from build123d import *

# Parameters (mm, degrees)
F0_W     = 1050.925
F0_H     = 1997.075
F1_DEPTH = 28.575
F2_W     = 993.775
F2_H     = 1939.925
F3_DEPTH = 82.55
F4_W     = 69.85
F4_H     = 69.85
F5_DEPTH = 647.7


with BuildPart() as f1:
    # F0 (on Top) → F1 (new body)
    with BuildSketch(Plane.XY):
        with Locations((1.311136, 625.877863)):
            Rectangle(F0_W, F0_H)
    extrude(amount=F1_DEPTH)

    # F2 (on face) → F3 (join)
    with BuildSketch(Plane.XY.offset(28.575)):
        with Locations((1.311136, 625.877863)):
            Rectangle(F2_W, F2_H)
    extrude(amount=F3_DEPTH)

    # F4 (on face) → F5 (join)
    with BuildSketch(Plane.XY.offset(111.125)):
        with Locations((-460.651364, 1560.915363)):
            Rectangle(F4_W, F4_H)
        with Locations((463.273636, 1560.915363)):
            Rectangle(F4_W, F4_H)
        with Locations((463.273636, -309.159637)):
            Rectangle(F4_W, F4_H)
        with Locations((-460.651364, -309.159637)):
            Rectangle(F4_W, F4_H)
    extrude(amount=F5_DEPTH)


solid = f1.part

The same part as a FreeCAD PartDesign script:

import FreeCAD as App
import Part
import Sketcher
from FreeCAD import Vector
Q = App.Units.Quantity

doc = App.newDocument("Part")
params = doc.addObject("Spreadsheet::Sheet", "Params")
for row, (alias, value) in enumerate([
    ("sketch1_width", "41.375 in"),
    ("sketch1_height", "78.625 in"),
    ("pad1_length", "1.125 in"),
    ("sketch2_width", "39.125 in"),
    ("sketch2_height", "76.375 in"),
    ("pad2_length", "3.25 in"),
    ("sketch3_width", "2.75 in"),
    ("pad3_length", "25.5 in"),
], start=1):
    params.set(f"A{row}", alias)
    params.set(f"B{row}", "=" + value)
    params.setAlias(f"B{row}", alias)

body = doc.addObject("PartDesign::Body", "Body")

# Sketch on XY plane
sketch1 = doc.addObject("Sketcher::SketchObject", "Sketch")
body.addObject(sketch1)
sketch1.AttachmentSupport = (doc.XY_Plane, [""])
sketch1.MapMode = "FlatFace"
sketch1.addGeometry(Part.LineSegment(Vector(-524, 1624, 0), Vector(-524, -373, 0)), False)
sketch1.addGeometry(Part.LineSegment(Vector(-524, -373, 0), Vector(527, -373, 0)), False)
sketch1.addGeometry(Part.LineSegment(Vector(527, -373, 0), Vector(527, 1624, 0)), False)
sketch1.addGeometry(Part.LineSegment(Vector(527, 1624, 0), Vector(-524, 1624, 0)), False)
sketch1.addConstraint(Sketcher.Constraint("Coincident", 0, 2, 1, 1))
sketch1.addConstraint(Sketcher.Constraint("Coincident", 1, 2, 2, 1))
sketch1.addConstraint(Sketcher.Constraint("Coincident", 2, 2, 3, 1))
sketch1.addConstraint(Sketcher.Constraint("Coincident", 3, 2, 0, 1))
sketch1.addConstraint(Sketcher.Constraint("Vertical", 0))
sketch1.addConstraint(Sketcher.Constraint("Horizontal", 1))
sketch1.addConstraint(Sketcher.Constraint("Vertical", 2))
sketch1.addConstraint(Sketcher.Constraint("Horizontal", 3))
sketch1.addConstraint(Sketcher.Constraint("DistanceX", 1, 1, 1, 2, Q("41.375 in")))
sketch1.addConstraint(Sketcher.Constraint("DistanceY", 0, 2, 0, 1, Q("78.625 in")))
sketch1.addConstraint(Sketcher.Constraint("DistanceX", 0, 2, -1, 1, 524.151364))
sketch1.addConstraint(Sketcher.Constraint("DistanceY", 0, 2, -1, 1, 372.659637))
sketch1.setExpression("Constraints[8]", "Params.sketch1_width")
sketch1.setExpression("Constraints[9]", "Params.sketch1_height")
pad1 = doc.addObject("PartDesign::Pad", "Pad")
body.addObject(pad1)
pad1.Profile = sketch1
pad1.setExpression("Length", "Params.pad1_length")

# Sketch on XY plane
sketch2 = doc.addObject("Sketcher::SketchObject", "Sketch001")
body.addObject(sketch2)
sketch2.AttachmentSupport = (doc.XY_Plane, [""])
sketch2.MapMode = "FlatFace"
sketch2.AttachmentOffset = App.Placement(Vector(0, 0, 1.125 * 25.4), App.Rotation())
sketch2.addGeometry(Part.LineSegment(Vector(-496, 1596, 0), Vector(-496, -344, 0)), False)
sketch2.addGeometry(Part.LineSegment(Vector(-496, -344, 0), Vector(498, -344, 0)), False)
sketch2.addGeometry(Part.LineSegment(Vector(498, -344, 0), Vector(498, 1596, 0)), False)
sketch2.addGeometry(Part.LineSegment(Vector(498, 1596, 0), Vector(-496, 1596, 0)), False)
sketch2.addConstraint(Sketcher.Constraint("Coincident", 0, 2, 1, 1))
sketch2.addConstraint(Sketcher.Constraint("Coincident", 1, 2, 2, 1))
sketch2.addConstraint(Sketcher.Constraint("Coincident", 2, 2, 3, 1))
sketch2.addConstraint(Sketcher.Constraint("Coincident", 3, 2, 0, 1))
sketch2.addConstraint(Sketcher.Constraint("Vertical", 0))
sketch2.addConstraint(Sketcher.Constraint("Horizontal", 1))
sketch2.addConstraint(Sketcher.Constraint("Vertical", 2))
sketch2.addConstraint(Sketcher.Constraint("Horizontal", 3))
sketch2.addConstraint(Sketcher.Constraint("DistanceX", 1, 1, 1, 2, Q("39.125 in")))
sketch2.addConstraint(Sketcher.Constraint("DistanceY", 0, 2, 0, 1, Q("76.375 in")))
sketch2.addConstraint(Sketcher.Constraint("DistanceX", 0, 2, -1, 1, 495.576364))
sketch2.addConstraint(Sketcher.Constraint("DistanceY", 0, 2, -1, 1, 344.084637))
sketch2.setExpression("Constraints[8]", "Params.sketch2_width")
sketch2.setExpression("Constraints[9]", "Params.sketch2_height")
pad2 = doc.addObject("PartDesign::Pad", "Pad001")
body.addObject(pad2)
pad2.Profile = sketch2
pad2.setExpression("Length", "Params.pad2_length")

# Sketch on XY plane
sketch3 = doc.addObject("Sketcher::SketchObject", "Sketch002")
body.addObject(sketch3)
sketch3.AttachmentSupport = (doc.XY_Plane, [""])
sketch3.MapMode = "FlatFace"
sketch3.AttachmentOffset = App.Placement(Vector(0, 0, 4.375 * 25.4), App.Rotation())
sketch3.addGeometry(Part.LineSegment(Vector(-496, 1596, 0), Vector(-496, 1526, 0)), False)
sketch3.addGeometry(Part.LineSegment(Vector(-496, 1526, 0), Vector(-426, 1526, 0)), False)
sketch3.addGeometry(Part.LineSegment(Vector(-426, 1526, 0), Vector(-426, 1596, 0)), False)
sketch3.addGeometry(Part.LineSegment(Vector(-426, 1596, 0), Vector(-496, 1596, 0)), False)
sketch3.addGeometry(Part.LineSegment(Vector(428, 1596, 0), Vector(428, 1526, 0)), False)
sketch3.addGeometry(Part.LineSegment(Vector(428, 1526, 0), Vector(498, 1526, 0)), False)
sketch3.addGeometry(Part.LineSegment(Vector(498, 1526, 0), Vector(498, 1596, 0)), False)
sketch3.addGeometry(Part.LineSegment(Vector(498, 1596, 0), Vector(428, 1596, 0)), False)
sketch3.addGeometry(Part.LineSegment(Vector(428, -274, 0), Vector(428, -344, 0)), False)
sketch3.addGeometry(Part.LineSegment(Vector(428, -344, 0), Vector(498, -344, 0)), False)
sketch3.addGeometry(Part.LineSegment(Vector(498, -344, 0), Vector(498, -274, 0)), False)
sketch3.addGeometry(Part.LineSegment(Vector(498, -274, 0), Vector(428, -274, 0)), False)
sketch3.addGeometry(Part.LineSegment(Vector(-496, -274, 0), Vector(-496, -344, 0)), False)
sketch3.addGeometry(Part.LineSegment(Vector(-496, -344, 0), Vector(-426, -344, 0)), False)
sketch3.addGeometry(Part.LineSegment(Vector(-426, -344, 0), Vector(-426, -274, 0)), False)
sketch3.addGeometry(Part.LineSegment(Vector(-426, -274, 0), Vector(-496, -274, 0)), False)
sketch3.addConstraint(Sketcher.Constraint("Coincident", 0, 2, 1, 1))
sketch3.addConstraint(Sketcher.Constraint("Coincident", 1, 2, 2, 1))
sketch3.addConstraint(Sketcher.Constraint("Coincident", 2, 2, 3, 1))
sketch3.addConstraint(Sketcher.Constraint("Coincident", 3, 2, 0, 1))
sketch3.addConstraint(Sketcher.Constraint("Coincident", 4, 2, 5, 1))
sketch3.addConstraint(Sketcher.Constraint("Coincident", 5, 2, 6, 1))
sketch3.addConstraint(Sketcher.Constraint("Coincident", 6, 2, 7, 1))
sketch3.addConstraint(Sketcher.Constraint("Coincident", 7, 2, 4, 1))
sketch3.addConstraint(Sketcher.Constraint("Coincident", 8, 2, 9, 1))
sketch3.addConstraint(Sketcher.Constraint("Coincident", 9, 2, 10, 1))
sketch3.addConstraint(Sketcher.Constraint("Coincident", 10, 2, 11, 1))
sketch3.addConstraint(Sketcher.Constraint("Coincident", 11, 2, 8, 1))
sketch3.addConstraint(Sketcher.Constraint("Coincident", 12, 2, 13, 1))
sketch3.addConstraint(Sketcher.Constraint("Coincident", 13, 2, 14, 1))
sketch3.addConstraint(Sketcher.Constraint("Coincident", 14, 2, 15, 1))
sketch3.addConstraint(Sketcher.Constraint("Coincident", 15, 2, 12, 1))
sketch3.addConstraint(Sketcher.Constraint("Vertical", 0))
sketch3.addConstraint(Sketcher.Constraint("Horizontal", 1))
sketch3.addConstraint(Sketcher.Constraint("Vertical", 2))
sketch3.addConstraint(Sketcher.Constraint("Horizontal", 3))
sketch3.addConstraint(Sketcher.Constraint("Vertical", 4))
sketch3.addConstraint(Sketcher.Constraint("Horizontal", 5))
sketch3.addConstraint(Sketcher.Constraint("Vertical", 6))
sketch3.addConstraint(Sketcher.Constraint("Horizontal", 7))
sketch3.addConstraint(Sketcher.Constraint("Vertical", 8))
sketch3.addConstraint(Sketcher.Constraint("Horizontal", 9))
sketch3.addConstraint(Sketcher.Constraint("Vertical", 10))
sketch3.addConstraint(Sketcher.Constraint("Horizontal", 11))
sketch3.addConstraint(Sketcher.Constraint("Vertical", 12))
sketch3.addConstraint(Sketcher.Constraint("Horizontal", 13))
sketch3.addConstraint(Sketcher.Constraint("Vertical", 14))
sketch3.addConstraint(Sketcher.Constraint("Horizontal", 15))
sketch3.addConstraint(Sketcher.Constraint("Horizontal", 1, 2, 4, 2))
sketch3.addConstraint(Sketcher.Constraint("Horizontal", 3, 2, 6, 2))
sketch3.addConstraint(Sketcher.Constraint("Horizontal", 9, 2, 12, 2))
sketch3.addConstraint(Sketcher.Constraint("Horizontal", 11, 2, 14, 2))
sketch3.addConstraint(Sketcher.Constraint("Vertical", 7, 2, 8, 2))
sketch3.addConstraint(Sketcher.Constraint("Vertical", 6, 2, 9, 2))
sketch3.addConstraint(Sketcher.Constraint("Vertical", 3, 2, 12, 2))
sketch3.addConstraint(Sketcher.Constraint("Vertical", 2, 2, 13, 2))
sketch3.addConstraint(Sketcher.Constraint("Equal", 3, 5))
sketch3.addConstraint(Sketcher.Constraint("Equal", 15, 0))
sketch3.addConstraint(Sketcher.Constraint("Equal", 6, 8))
sketch3.addConstraint(Sketcher.Constraint("DistanceX", 1, 1, 1, 2, Q("2.75 in")))
sketch3.addConstraint(Sketcher.Constraint("DistanceX", 1, 2, 4, 2, Q("33.625 in")))
sketch3.addConstraint(Sketcher.Constraint("DistanceY", 8, 2, 4, 2, Q("73.625 in")))
sketch3.addConstraint(Sketcher.Constraint("DistanceX", 0, 2, -1, 1, 495.576364))
sketch3.addConstraint(Sketcher.Constraint("DistanceY", -1, 1, 0, 2, 1525.990363))
sketch3.setExpression("Constraints[43]", "Params.sketch3_width")
pad3 = doc.addObject("PartDesign::Pad", "Pad002")
body.addObject(pad3)
pad3.Profile = sketch3
pad3.setExpression("Length", "Params.pad3_length")

doc.recompute()
